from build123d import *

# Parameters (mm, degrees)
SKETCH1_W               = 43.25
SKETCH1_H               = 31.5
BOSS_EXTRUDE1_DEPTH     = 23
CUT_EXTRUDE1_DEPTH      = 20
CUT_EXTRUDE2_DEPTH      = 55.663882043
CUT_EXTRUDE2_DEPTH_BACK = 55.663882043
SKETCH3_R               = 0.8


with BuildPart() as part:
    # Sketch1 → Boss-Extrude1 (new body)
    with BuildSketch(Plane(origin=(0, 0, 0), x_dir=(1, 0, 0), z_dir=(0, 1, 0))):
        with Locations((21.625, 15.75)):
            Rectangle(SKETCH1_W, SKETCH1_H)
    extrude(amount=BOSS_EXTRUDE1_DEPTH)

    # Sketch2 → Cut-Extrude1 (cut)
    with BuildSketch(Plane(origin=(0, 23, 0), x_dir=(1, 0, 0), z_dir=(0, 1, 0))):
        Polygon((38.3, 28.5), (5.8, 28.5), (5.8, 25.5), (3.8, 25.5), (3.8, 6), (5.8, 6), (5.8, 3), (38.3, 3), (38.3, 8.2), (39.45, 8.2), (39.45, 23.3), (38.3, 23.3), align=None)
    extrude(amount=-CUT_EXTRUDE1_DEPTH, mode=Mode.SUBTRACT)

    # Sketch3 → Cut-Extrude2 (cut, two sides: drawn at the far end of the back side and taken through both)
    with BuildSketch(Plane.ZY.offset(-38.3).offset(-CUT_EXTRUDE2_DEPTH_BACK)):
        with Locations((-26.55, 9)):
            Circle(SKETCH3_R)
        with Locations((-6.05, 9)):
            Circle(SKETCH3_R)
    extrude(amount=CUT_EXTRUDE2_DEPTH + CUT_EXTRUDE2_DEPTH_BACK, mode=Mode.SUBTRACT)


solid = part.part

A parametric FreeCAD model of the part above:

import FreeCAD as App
import Part
import Sketcher
from FreeCAD import Vector

doc = App.newDocument("Part")
body = doc.addObject("PartDesign::Body", "Body")

sketch1 = body.newObject("Sketcher::SketchObject", "Sketch")
sketch1.AttachmentSupport = (doc.getObject("XZ_Plane"), [""])
sketch1.MapMode = "FlatFace"
sketch1.addGeometry([
    Part.LineSegment(Vector(0, -32, 0), Vector(0, 0, 0)),
    Part.LineSegment(Vector(0, 0, 0), Vector(43, 0, 0)),
    Part.LineSegment(Vector(43, 0, 0), Vector(43, -32, 0)),
    Part.LineSegment(Vector(43, -32, 0), Vector(0, -32, 0)),
], False)
sketch1.addConstraint([
    Sketcher.Constraint("Coincident", 0, 2, 1, 1),
    Sketcher.Constraint("Coincident", 1, 2, 2, 1),
    Sketcher.Constraint("Coincident", 2, 2, 3, 1),
    Sketcher.Constraint("Coincident", 3, 2, 0, 1),
    Sketcher.Constraint("Vertical", 0),
    Sketcher.Constraint("Horizontal", 1),
    Sketcher.Constraint("Vertical", 2),
    Sketcher.Constraint("Horizontal", 3),
    Sketcher.Constraint("Coincident", 0, 2, -1, 1),
    Sketcher.Constraint("DistanceY", 0, 1, 0, 2, 31.5),
    Sketcher.Constraint("DistanceX", 1, 1, 1, 2, 43.25),
])
pad1 = body.newObject("PartDesign::Pad", "Pad")
pad1.Profile = sketch1
pad1.Length = 23
pad1.Reversed = True

sketch2 = body.newObject("Sketcher::SketchObject", "Sketch001")
sketch2.AttachmentSupport = (doc.getObject("XZ_Plane"), [""])
sketch2.MapMode = "FlatFace"
sketch2.AttachmentOffset = App.Placement(Vector(0, 0, -23), App.Rotation())
sketch2.addGeometry([
    Part.LineSegment(Vector(38.3, -28.5, 0), Vector(5.8, -28.5, 0)),
    Part.LineSegment(Vector(5.8, -28.5, 0), Vector(5.8, -25.5, 0)),
    Part.LineSegment(Vector(5.8, -25.5, 0), Vector(3.8, -25.5, 0)),
    Part.LineSegment(Vector(3.8, -25.5, 0), Vector(3.8, -6, 0)),
    Part.LineSegment(Vector(3.8, -6, 0), Vector(5.8, -6, 0)),
    Part.LineSegment(Vector(5.8, -6, 0), Vector(5.8, -3, 0)),
    Part.LineSegment(Vector(5.8, -3, 0), Vector(38.3, -3, 0)),
    Part.LineSegment(Vector(38.3, -3, 0), Vector(38.3, -8.2, 0)),
    Part.LineSegment(Vector(38.3, -8.2, 0), Vector(39.5, -8.2, 0)),
    Part.LineSegment(Vector(39.5, -8.2, 0), Vector(39.5, -23.3, 0)),
    Part.LineSegment(Vector(39.5, -23.3, 0), Vector(38.3, -23.3, 0)),
    Part.LineSegment(Vector(38.3, -23.3, 0), Vector(38.3, -28.5, 0)),
], False)
sketch2.addConstraint([
    Sketcher.Constraint("Coincident", 0, 2, 1, 1),
    Sketcher.Constraint("Coincident", 1, 2, 2, 1),
    Sketcher.Constraint("Coincident", 2, 2, 3, 1),
    Sketcher.Constraint("Coincident", 3, 2, 4, 1),
    Sketcher.Constraint("Coincident", 4, 2, 5, 1),
    Sketcher.Constraint("Coincident", 5, 2, 6, 1),
    Sketcher.Constraint("Coincident", 6, 2, 7, 1),
    Sketcher.Constraint("Coincident", 7, 2, 8, 1),
    Sketcher.Constraint("Coincident", 8, 2, 9, 1),
    Sketcher.Constraint("Coincident", 9, 2, 10, 1),
    Sketcher.Constraint("Coincident", 10, 2, 11, 1),
    Sketcher.Constraint("Coincident", 11, 2, 0, 1),
    Sketcher.Constraint("Horizontal", 0),
    Sketcher.Constraint("Vertical", 1),
    Sketcher.Constraint("Horizontal", 2),
    Sketcher.Constraint("Vertical", 3),
    Sketcher.Constraint("Horizontal", 4),
    Sketcher.Constraint("Vertical", 5),
    Sketcher.Constraint("Horizontal", 6),
    Sketcher.Constraint("Vertical", 7),
    Sketcher.Constraint("Horizontal", 8),
    Sketcher.Constraint("Vertical", 9),
    Sketcher.Constraint("Horizontal", 10),
    Sketcher.Constraint("Vertical", 11),
    Sketcher.Constraint("Vertical", 1, 2, 4, 2),
    Sketcher.Constraint("Vertical", 7, 2, 10, 2),
    Sketcher.Constraint("Equal", 1, 5),
    Sketcher.Constraint("Equal", 7, 11),
    Sketcher.Constraint("DistanceX", 2, 2, 2, 1, 2.0),
    Sketcher.Constraint("DistanceY", 1, 1, 1, 2, 3.0),
    Sketcher.Constraint("DistanceX", 0, 2, 0, 1, 32.5),
    Sketcher.Constraint("DistanceY", 3, 1, 3, 2, 19.5),
    Sketcher.Constraint("DistanceY", 7, 2, 7, 1, 5.2),
    Sketcher.Constraint("DistanceY", 3, 2, -1, 1, 6.0),
    Sketcher.Constraint("DistanceX", 8, 1, 8, 2, 1.15),
    Sketcher.Constraint("DistanceX", -1, 1, 0, 2, 5.8),
])
pocket1 = body.newObject("PartDesign::Pocket", "Pocket")
pocket1.Profile = sketch2
pocket1.Length = 20
pocket1.Reversed = True

sketch3 = body.newObject("Sketcher::SketchObject", "Sketch002")
sketch3.AttachmentSupport = (doc.getObject("YZ_Plane"), [""])
sketch3.MapMode = "FlatFace"
sketch3.AttachmentOffset = App.Placement(Vector(0, 0, 38.3), App.Rotation())
sketch3.addGeometry([
    Part.Circle(Vector(9, -26.6, 0), Vector(0, 0, 1), 0.8),
    Part.Circle(Vector(9, -6, 0), Vector(0, 0, 1), 0.8),
], False)
sketch3.addConstraint([
    Sketcher.Constraint("Equal", 0, 1),
    Sketcher.Constraint("Vertical", 0, 3, 1, 3),
    Sketcher.Constraint("Diameter", 0, 1.6),
    Sketcher.Constraint("DistanceX", -1, 1, 0, 3, 9.0),
    Sketcher.Constraint("DistanceY", 0, 3, 1, 3, 20.5),
    Sketcher.Constraint("DistanceY", 0, 3, -1, 1, 26.55),
])
pocket2 = body.newObject("PartDesign::Pocket", "Pocket001")
pocket2.Profile = sketch3
pocket2.Type = "ThroughAll"
pocket2.Midplane = True

doc.recompute()
